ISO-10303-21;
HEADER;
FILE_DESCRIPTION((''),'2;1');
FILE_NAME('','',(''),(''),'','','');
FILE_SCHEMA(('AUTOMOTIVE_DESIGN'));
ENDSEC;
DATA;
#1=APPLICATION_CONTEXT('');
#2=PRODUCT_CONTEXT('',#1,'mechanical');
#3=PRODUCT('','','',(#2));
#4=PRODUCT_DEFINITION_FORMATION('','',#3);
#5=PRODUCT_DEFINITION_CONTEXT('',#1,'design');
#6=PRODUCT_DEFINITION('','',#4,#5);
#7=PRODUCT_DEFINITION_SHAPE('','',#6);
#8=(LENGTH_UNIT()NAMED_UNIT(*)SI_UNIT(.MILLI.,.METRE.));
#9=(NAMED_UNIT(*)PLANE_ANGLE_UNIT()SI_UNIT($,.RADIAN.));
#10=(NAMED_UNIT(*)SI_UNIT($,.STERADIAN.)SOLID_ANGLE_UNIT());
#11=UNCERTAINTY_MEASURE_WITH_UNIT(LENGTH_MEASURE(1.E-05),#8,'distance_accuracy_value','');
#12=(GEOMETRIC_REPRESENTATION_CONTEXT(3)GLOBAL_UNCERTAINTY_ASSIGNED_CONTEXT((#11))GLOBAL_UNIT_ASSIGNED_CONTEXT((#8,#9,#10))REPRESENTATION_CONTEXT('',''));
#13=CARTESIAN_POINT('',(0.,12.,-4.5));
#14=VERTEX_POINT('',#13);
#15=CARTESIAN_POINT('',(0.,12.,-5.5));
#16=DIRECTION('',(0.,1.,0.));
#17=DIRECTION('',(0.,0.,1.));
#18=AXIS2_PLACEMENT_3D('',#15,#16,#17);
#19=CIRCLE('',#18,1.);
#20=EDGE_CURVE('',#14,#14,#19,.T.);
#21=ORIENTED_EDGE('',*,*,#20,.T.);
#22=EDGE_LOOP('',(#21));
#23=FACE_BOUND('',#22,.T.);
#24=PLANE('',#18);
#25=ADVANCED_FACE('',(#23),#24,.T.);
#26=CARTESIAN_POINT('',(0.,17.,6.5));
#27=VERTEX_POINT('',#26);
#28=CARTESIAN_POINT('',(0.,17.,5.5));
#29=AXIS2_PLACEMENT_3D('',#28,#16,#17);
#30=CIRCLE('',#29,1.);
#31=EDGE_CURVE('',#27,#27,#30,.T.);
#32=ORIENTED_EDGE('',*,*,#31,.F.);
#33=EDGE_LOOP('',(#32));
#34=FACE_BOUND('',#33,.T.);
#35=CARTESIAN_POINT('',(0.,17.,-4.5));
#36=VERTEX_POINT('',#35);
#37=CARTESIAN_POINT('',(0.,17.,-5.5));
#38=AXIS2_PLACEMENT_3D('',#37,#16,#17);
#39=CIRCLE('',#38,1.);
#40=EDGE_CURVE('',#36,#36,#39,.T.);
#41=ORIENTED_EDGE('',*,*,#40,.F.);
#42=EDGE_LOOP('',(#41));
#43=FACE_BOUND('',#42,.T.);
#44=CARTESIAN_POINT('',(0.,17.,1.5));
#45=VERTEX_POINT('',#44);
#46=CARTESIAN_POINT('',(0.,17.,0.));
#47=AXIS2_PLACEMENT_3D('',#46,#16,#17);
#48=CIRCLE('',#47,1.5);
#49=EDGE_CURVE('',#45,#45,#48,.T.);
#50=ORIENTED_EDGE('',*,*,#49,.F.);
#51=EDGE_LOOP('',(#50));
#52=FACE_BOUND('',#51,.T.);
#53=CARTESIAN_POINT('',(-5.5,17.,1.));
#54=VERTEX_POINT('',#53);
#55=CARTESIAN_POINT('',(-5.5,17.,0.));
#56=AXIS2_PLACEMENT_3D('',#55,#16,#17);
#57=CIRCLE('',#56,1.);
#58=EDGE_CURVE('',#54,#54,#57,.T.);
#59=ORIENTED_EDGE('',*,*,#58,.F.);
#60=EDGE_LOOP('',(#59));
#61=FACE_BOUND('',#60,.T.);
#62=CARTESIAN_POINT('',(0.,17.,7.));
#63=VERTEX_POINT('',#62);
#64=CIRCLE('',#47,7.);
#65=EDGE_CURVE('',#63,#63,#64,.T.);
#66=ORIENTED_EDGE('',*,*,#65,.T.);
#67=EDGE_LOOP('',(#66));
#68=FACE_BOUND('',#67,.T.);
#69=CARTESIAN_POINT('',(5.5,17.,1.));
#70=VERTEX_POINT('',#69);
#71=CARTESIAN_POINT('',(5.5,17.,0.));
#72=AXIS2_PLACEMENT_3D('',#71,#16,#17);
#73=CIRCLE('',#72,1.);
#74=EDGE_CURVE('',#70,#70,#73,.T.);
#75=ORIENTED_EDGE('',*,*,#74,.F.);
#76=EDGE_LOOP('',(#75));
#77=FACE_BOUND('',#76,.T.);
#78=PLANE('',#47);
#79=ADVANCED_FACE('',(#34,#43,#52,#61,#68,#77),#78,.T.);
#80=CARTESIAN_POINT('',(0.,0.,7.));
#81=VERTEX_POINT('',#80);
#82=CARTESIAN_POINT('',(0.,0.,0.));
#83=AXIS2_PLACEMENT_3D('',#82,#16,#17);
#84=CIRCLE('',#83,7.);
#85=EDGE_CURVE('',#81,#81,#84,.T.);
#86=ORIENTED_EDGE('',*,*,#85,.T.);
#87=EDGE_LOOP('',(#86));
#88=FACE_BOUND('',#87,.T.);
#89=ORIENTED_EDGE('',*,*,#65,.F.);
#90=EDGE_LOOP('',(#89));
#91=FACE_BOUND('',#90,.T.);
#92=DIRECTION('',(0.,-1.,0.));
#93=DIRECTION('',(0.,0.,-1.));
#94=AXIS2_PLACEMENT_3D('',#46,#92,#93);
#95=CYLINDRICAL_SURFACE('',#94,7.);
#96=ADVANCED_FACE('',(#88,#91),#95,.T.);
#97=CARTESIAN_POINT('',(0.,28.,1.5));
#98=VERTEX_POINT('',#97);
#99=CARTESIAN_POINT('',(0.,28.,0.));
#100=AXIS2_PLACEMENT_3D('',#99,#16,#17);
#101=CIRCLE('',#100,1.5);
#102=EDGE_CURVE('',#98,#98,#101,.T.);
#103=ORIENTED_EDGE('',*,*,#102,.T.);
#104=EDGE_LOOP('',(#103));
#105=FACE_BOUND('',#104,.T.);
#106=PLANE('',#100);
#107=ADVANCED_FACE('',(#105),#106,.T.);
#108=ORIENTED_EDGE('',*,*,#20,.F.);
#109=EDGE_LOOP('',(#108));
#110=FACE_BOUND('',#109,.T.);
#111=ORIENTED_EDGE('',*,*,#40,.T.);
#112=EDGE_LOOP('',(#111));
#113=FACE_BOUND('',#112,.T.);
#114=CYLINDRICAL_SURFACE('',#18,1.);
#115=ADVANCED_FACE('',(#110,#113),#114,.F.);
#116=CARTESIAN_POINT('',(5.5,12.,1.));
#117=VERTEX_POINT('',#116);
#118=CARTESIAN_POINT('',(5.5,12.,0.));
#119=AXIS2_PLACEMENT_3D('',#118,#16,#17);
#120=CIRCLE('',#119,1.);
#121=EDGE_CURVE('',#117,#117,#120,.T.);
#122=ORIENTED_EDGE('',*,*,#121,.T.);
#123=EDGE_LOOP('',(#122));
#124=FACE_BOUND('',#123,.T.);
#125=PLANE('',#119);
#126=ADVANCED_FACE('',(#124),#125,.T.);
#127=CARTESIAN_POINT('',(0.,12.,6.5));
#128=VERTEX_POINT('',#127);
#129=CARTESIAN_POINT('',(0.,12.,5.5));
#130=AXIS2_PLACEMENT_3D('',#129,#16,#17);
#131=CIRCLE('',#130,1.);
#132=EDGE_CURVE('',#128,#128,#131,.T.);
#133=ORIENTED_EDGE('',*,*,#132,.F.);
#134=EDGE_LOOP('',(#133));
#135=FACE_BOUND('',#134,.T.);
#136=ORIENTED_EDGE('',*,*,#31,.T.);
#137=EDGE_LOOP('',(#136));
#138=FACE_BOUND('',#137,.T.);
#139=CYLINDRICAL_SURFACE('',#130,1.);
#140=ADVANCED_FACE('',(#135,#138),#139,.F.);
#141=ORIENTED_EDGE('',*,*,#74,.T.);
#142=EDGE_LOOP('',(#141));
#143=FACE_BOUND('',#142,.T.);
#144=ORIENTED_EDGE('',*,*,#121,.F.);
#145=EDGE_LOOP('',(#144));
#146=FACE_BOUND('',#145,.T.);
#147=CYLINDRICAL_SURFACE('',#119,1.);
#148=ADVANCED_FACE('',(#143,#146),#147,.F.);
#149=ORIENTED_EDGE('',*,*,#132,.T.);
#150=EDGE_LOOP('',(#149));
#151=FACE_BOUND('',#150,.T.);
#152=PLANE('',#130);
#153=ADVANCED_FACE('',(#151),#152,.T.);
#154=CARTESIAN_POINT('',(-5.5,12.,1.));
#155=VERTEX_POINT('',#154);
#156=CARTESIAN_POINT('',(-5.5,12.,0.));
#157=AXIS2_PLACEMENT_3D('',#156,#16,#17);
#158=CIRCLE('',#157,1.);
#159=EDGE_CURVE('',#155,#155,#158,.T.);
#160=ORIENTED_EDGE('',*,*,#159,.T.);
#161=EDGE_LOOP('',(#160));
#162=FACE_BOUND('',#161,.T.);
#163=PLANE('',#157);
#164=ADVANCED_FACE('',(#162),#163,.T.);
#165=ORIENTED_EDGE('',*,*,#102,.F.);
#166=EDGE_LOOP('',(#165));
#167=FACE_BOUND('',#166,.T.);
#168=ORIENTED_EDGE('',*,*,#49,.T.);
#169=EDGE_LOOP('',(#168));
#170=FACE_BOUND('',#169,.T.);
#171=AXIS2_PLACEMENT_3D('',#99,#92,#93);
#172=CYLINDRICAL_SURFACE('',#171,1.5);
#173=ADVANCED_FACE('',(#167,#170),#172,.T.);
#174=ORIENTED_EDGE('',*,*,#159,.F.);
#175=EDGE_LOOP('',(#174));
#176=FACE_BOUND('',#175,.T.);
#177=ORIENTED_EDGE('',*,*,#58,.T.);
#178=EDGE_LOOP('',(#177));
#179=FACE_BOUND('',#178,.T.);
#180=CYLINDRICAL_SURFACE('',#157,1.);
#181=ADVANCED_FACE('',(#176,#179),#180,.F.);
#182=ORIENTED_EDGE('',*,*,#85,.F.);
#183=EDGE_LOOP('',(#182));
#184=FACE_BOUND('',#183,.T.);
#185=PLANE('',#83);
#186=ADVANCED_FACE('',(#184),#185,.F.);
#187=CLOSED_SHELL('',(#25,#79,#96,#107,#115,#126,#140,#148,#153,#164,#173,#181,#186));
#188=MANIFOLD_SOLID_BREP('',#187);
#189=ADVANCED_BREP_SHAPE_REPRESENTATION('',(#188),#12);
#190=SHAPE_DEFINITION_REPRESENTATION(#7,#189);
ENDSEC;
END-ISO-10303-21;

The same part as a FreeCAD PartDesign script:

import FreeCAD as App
import Part
import Sketcher

doc = App.newDocument("Part")
body = doc.addObject("PartDesign::Body", "Body")

sketch1 = body.newObject("Sketcher::SketchObject", "Sketch")
sketch1.AttachmentSupport = (doc.getObject("XZ_Plane"), [""])
sketch1.MapMode = "FlatFace"
sketch1.addGeometry(Part.Circle(App.Vector(0, 0, 0), App.Vector(0, 0, 1), 7), False)
sketch1.addConstraint([
    Sketcher.Constraint("Coincident", 0, 3, -1, 1),
    Sketcher.Constraint("Diameter", 0, 14.0),
])
pad1 = body.newObject("PartDesign::Pad", "Pad")
pad1.Profile = sketch1
pad1.Length = 17
pad1.Reversed = True

sketch2 = body.newObject("Sketcher::SketchObject", "Sketch001")
sketch2.AttachmentSupport = (doc.getObject("XZ_Plane"), [""])
sketch2.MapMode = "FlatFace"
sketch2.AttachmentOffset = App.Placement(App.Vector(0, 0, -17), App.Rotation())
sketch2.addGeometry(Part.Circle(App.Vector(0, 0, 0), App.Vector(0, 0, 1), 1.5), False)
sketch2.addConstraint([
    Sketcher.Constraint("Coincident", 0, 3, -1, 1),
    Sketcher.Constraint("Diameter", 0, 3.0),
])
pad2 = body.newObject("PartDesign::Pad", "Pad001")
pad2.Profile = sketch2
pad2.Length = 11
pad2.Reversed = True

sketch3 = body.newObject("Sketcher::SketchObject", "Sketch002")
sketch3.AttachmentSupport = (doc.getObject("XZ_Plane"), [""])
sketch3.MapMode = "FlatFace"
sketch3.AttachmentOffset = App.Placement(App.Vector(0, 0, -17), App.Rotation())
sketch3.addGeometry([
    Part.Circle(App.Vector(0, 5.5, 0), App.Vector(0, 0, 1), 1),
    Part.Circle(App.Vector(-5.5, 0, 0), App.Vector(0, 0, 1), 1),
    Part.Circle(App.Vector(0, -5.5, 0), App.Vector(0, 0, 1), 1),
    Part.Circle(App.Vector(5.5, 0, 0), App.Vector(0, 0, 1), 1),
], False)
sketch3.addConstraint([
    Sketcher.Constraint("Equal", 0, 1),
    Sketcher.Constraint("Equal", 1, 2),
    Sketcher.Constraint("Equal", 2, 3),
    Sketcher.Constraint("Symmetric", 0, 3, 2, 3, -1, 1),
    Sketcher.Constraint("Symmetric", 1, 3, 3, 3, -1, 1),
    Sketcher.Constraint("PointOnObject", 0, 3, -2),
    Sketcher.Constraint("PointOnObject", 1, 3, -1),
    Sketcher.Constraint("Diameter", 0, 2.0),
    Sketcher.Constraint("DistanceY", 2, 3, 0, 3, 11.0),
    Sketcher.Constraint("DistanceX", 1, 3, 3, 3, 11.0),
])
pocket1 = body.newObject("PartDesign::Pocket", "Pocket")
pocket1.Profile = sketch3
pocket1.Length = 5
pocket1.Reversed = True

doc.recompute()
